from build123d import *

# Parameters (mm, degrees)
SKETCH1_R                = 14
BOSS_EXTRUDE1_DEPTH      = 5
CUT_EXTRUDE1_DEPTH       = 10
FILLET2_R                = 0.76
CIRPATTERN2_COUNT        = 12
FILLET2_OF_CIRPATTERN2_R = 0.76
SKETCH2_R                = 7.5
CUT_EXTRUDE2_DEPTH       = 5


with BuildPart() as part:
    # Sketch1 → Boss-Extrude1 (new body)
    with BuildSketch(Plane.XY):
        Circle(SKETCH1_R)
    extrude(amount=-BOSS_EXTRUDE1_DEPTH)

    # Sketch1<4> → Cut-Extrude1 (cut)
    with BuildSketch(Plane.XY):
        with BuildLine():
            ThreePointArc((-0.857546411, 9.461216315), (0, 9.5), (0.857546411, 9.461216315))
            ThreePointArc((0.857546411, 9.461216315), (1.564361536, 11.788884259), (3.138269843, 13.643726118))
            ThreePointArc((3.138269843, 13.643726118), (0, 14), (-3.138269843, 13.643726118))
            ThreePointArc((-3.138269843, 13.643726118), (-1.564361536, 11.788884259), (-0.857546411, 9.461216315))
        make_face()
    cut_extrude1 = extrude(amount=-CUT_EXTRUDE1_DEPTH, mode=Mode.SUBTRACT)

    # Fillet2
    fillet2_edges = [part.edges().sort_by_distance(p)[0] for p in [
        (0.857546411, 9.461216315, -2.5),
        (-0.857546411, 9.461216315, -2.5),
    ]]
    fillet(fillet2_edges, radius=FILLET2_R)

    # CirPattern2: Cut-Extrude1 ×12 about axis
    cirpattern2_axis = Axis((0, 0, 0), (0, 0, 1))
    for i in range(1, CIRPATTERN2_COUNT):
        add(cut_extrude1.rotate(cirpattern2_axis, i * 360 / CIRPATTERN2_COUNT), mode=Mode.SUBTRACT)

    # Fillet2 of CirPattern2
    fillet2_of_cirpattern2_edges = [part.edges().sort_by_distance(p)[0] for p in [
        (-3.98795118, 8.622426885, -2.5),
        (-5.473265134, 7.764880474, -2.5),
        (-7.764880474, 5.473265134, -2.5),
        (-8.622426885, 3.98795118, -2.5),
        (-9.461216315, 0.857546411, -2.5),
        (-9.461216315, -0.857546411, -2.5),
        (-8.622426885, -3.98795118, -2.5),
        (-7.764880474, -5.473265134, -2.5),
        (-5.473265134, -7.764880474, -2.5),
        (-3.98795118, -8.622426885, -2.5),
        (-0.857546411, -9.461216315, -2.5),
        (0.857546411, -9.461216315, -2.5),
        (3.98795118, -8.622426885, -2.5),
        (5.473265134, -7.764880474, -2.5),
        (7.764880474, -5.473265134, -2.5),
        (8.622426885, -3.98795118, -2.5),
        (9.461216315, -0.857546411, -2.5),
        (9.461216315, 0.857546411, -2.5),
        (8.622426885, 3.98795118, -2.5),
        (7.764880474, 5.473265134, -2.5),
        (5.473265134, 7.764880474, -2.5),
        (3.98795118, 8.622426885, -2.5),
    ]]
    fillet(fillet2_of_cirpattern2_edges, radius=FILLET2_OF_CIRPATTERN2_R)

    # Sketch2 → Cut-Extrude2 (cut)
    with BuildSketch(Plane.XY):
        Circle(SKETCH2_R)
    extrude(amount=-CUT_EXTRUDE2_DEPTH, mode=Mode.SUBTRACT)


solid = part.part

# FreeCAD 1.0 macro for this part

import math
import FreeCAD as App
import Part
import Sketcher

V = App.Vector
Q = App.Units.Quantity


def edges_at(feature, points):
    """Names of the edges that pass closest to the given points."""
    edges = feature.Shape.Edges
    near = lambda p: min(range(len(edges)), key=lambda i: edges[i].distToShape(Part.Vertex(*p))[0])
    return sorted({f"Edge{near(p) + 1}" for p in points})

doc = App.newDocument("Part")
body = doc.addObject("PartDesign::Body", "Body")

sketch1 = body.newObject("Sketcher::SketchObject", "Sketch")
sketch1.AttachmentSupport = (doc.getObject("XY_Plane"), [""])
sketch1.MapMode = "FlatFace"
sketch1.addGeometry(Part.Circle(V(0, 0, 0), V(0, 0, 1), 14), False)
sketch1.addConstraint([
    Sketcher.Constraint("Coincident", 0, 3, -1, 1),
    Sketcher.Constraint("Diameter", 0, Q("28 mm")),
])
pad1 = body.newObject("PartDesign::Pad", "Pad")
pad1.Profile = sketch1
pad1.Length = 5
pad1.Reversed = True

sketch2 = body.newObject("Sketcher::SketchObject", "Sketch001")
sketch2.AttachmentSupport = (doc.getObject("XY_Plane"), [""])
sketch2.MapMode = "FlatFace"
sketch2.addGeometry([
    Part.ArcOfCircle(Part.Circle(V(0, 0, 0), V(0, 0, 1), 9.5), math.radians(84.82), math.radians(95.18)),
    Part.ArcOfCircle(Part.Circle(V(6.8, 8.9, 0), V(0, 0, 1), 6), math.radians(128), math.radians(175)),
    Part.ArcOfCircle(Part.Circle(V(0, 0, 0), V(0, 0, 1), 14), math.radians(77), math.radians(103)),
    Part.ArcOfCircle(Part.Circle(V(-6.8, 8.9, 0), V(0, 0, 1), 6), math.radians(5), math.radians(52)),
], False)
sketch2.addConstraint([
    Sketcher.Constraint("Coincident", 0, 1, 1, 2),
    Sketcher.Constraint("Coincident", 1, 1, 2, 1),
    Sketcher.Constraint("Coincident", 2, 2, 3, 2),
    Sketcher.Constraint("Coincident", 3, 1, 0, 2),
    Sketcher.Constraint("Coincident", 0, 3, -1, 1),
    Sketcher.Constraint("Coincident", 2, 3, -1, 1),
    Sketcher.Constraint("Equal", 1, 3),
    Sketcher.Constraint("Symmetric", 1, 3, 3, 3, -2),
    Sketcher.Constraint("Radius", 2, Q("14 mm")),
    Sketcher.Constraint("Radius", 0, Q("9.5 mm")),
    Sketcher.Constraint("Radius", 1, Q("5.991737 mm")),
    Sketcher.Constraint("DistanceX", -1, 1, 1, 1, Q("3.13827 mm")),
    Sketcher.Constraint("DistanceX", 3, 3, 0, 1, Q("7.682369 mm")),
])
pocket1 = body.newObject("PartDesign::Pocket", "Pocket")
pocket1.Profile = sketch2
pocket1.Length = 10
doc.recompute()

fillet = body.newObject("PartDesign::Fillet", "Fillet")
fillet.Base = (pocket1, edges_at(pocket1, [(0.858, 9.461, -2.5), (-0.858, 9.461, -2.5)]))
fillet.Radius = 0.76
doc.recompute()

polarpattern = body.newObject("PartDesign::PolarPattern", "PolarPattern")
polarpattern.Originals = [pocket1]
polarpattern.Axis = (doc.getObject("Z_Axis"), [""])
polarpattern.Angle = 360
polarpattern.Occurrences = 12
body.Tip = polarpattern
doc.recompute()

fillet2 = body.newObject("PartDesign::Fillet", "Fillet001")
fillet2.Base = (polarpattern, edges_at(polarpattern, [
    (-3.988, 8.622, -2.5),
    (-5.473, 7.765, -2.5),
    (-7.765, 5.473, -2.5),
    (-8.622, 3.988, -2.5),
    (-9.461, 0.858, -2.5),
    (-9.461, -0.858, -2.5),
    (-8.622, -3.988, -2.5),
    (-7.765, -5.473, -2.5),
    (-5.473, -7.765, -2.5),
    (-3.988, -8.622, -2.5),
    (-0.858, -9.461, -2.5),
    (0.858, -9.461, -2.5),
    (3.988, -8.622, -2.5),
    (5.473, -7.765, -2.5),
    (7.765, -5.473, -2.5),
    (8.622, -3.988, -2.5),
    (9.461, -0.858, -2.5),
    (9.461, 0.858, -2.5),
    (8.622, 3.988, -2.5),
    (7.765, 5.473, -2.5),
    (5.473, 7.765, -2.5),
    (3.988, 8.622, -2.5),
]))
fillet2.Radius = 0.76

sketch3 = body.newObject("Sketcher::SketchObject", "Sketch002")
sketch3.AttachmentSupport = (doc.getObject("XY_Plane"), [""])
sketch3.MapMode = "FlatFace"
sketch3.addGeometry(Part.Circle(V(0, 0, 0), V(0, 0, 1), 8), False)
sketch3.addConstraint([
    Sketcher.Constraint("Coincident", 0, 3, -1, 1),
    Sketcher.Constraint("Diameter", 0, Q("15 mm")),
])
pocket2 = body.newObject("PartDesign::Pocket", "Pocket001")
pocket2.Profile = sketch3
pocket2.Length = 5

doc.recompute()
